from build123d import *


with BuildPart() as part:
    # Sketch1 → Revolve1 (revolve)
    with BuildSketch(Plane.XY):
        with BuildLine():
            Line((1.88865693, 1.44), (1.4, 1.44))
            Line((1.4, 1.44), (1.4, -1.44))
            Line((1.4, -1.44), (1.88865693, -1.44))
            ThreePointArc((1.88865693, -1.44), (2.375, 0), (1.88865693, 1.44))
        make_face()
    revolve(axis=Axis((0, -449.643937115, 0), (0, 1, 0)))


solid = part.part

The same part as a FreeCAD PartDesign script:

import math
import FreeCAD as App
import Part
import Sketcher

V = App.Vector

doc = App.newDocument("Part")
body = doc.addObject("PartDesign::Body", "Body")

sketch1 = body.newObject("Sketcher::SketchObject", "Sketch")
sketch1.AttachmentSupport = (doc.getObject("XY_Plane"), [""])
sketch1.MapMode = "FlatFace"
sketch1.addGeometry(Part.LineSegment(V(1.89, 1.44, 0), V(1.4, 1.44, 0)), False)
sketch1.addGeometry(Part.LineSegment(V(1.4, 1.44, 0), V(1.4, -1.44, 0)), False)
sketch1.addGeometry(Part.LineSegment(V(1.4, -1.44, 0), V(1.89, -1.44, 0)), False)
sketch1.addGeometry(Part.ArcOfCircle(Part.Circle(V(0, 0, 0), V(0, 0, 1), 2.37), math.radians(-37), math.radians(37)), False)
sketch1.addConstraint(Sketcher.Constraint("Coincident", 0, 2, 1, 1))
sketch1.addConstraint(Sketcher.Constraint("Coincident", 1, 2, 2, 1))
sketch1.addConstraint(Sketcher.Constraint("Coincident", 2, 2, 3, 1))
sketch1.addConstraint(Sketcher.Constraint("Coincident", 3, 2, 0, 1))
sketch1.addConstraint(Sketcher.Constraint("Horizontal", 0))
sketch1.addConstraint(Sketcher.Constraint("Vertical", 1))
sketch1.addConstraint(Sketcher.Constraint("Horizontal", 2))
sketch1.addConstraint(Sketcher.Constraint("Coincident", 3, 3, -1, 1))
sketch1.addConstraint(Sketcher.Constraint("Vertical", 2, 2, 3, 2))
sketch1.addConstraint(Sketcher.Constraint("Radius", 3, 2.375))
sketch1.addConstraint(Sketcher.Constraint("DistanceY", 1, 2, 1, 1, 2.88))
sketch1.addConstraint(Sketcher.Constraint("DistanceX", -1, 1, 0, 2, 1.4))
revolution = body.newObject("PartDesign::Revolution", "Revolution")
revolution.Profile = sketch1
revolution.ReferenceAxis = (sketch1, ["V_Axis"])
revolution.Angle = 360

doc.recompute()
